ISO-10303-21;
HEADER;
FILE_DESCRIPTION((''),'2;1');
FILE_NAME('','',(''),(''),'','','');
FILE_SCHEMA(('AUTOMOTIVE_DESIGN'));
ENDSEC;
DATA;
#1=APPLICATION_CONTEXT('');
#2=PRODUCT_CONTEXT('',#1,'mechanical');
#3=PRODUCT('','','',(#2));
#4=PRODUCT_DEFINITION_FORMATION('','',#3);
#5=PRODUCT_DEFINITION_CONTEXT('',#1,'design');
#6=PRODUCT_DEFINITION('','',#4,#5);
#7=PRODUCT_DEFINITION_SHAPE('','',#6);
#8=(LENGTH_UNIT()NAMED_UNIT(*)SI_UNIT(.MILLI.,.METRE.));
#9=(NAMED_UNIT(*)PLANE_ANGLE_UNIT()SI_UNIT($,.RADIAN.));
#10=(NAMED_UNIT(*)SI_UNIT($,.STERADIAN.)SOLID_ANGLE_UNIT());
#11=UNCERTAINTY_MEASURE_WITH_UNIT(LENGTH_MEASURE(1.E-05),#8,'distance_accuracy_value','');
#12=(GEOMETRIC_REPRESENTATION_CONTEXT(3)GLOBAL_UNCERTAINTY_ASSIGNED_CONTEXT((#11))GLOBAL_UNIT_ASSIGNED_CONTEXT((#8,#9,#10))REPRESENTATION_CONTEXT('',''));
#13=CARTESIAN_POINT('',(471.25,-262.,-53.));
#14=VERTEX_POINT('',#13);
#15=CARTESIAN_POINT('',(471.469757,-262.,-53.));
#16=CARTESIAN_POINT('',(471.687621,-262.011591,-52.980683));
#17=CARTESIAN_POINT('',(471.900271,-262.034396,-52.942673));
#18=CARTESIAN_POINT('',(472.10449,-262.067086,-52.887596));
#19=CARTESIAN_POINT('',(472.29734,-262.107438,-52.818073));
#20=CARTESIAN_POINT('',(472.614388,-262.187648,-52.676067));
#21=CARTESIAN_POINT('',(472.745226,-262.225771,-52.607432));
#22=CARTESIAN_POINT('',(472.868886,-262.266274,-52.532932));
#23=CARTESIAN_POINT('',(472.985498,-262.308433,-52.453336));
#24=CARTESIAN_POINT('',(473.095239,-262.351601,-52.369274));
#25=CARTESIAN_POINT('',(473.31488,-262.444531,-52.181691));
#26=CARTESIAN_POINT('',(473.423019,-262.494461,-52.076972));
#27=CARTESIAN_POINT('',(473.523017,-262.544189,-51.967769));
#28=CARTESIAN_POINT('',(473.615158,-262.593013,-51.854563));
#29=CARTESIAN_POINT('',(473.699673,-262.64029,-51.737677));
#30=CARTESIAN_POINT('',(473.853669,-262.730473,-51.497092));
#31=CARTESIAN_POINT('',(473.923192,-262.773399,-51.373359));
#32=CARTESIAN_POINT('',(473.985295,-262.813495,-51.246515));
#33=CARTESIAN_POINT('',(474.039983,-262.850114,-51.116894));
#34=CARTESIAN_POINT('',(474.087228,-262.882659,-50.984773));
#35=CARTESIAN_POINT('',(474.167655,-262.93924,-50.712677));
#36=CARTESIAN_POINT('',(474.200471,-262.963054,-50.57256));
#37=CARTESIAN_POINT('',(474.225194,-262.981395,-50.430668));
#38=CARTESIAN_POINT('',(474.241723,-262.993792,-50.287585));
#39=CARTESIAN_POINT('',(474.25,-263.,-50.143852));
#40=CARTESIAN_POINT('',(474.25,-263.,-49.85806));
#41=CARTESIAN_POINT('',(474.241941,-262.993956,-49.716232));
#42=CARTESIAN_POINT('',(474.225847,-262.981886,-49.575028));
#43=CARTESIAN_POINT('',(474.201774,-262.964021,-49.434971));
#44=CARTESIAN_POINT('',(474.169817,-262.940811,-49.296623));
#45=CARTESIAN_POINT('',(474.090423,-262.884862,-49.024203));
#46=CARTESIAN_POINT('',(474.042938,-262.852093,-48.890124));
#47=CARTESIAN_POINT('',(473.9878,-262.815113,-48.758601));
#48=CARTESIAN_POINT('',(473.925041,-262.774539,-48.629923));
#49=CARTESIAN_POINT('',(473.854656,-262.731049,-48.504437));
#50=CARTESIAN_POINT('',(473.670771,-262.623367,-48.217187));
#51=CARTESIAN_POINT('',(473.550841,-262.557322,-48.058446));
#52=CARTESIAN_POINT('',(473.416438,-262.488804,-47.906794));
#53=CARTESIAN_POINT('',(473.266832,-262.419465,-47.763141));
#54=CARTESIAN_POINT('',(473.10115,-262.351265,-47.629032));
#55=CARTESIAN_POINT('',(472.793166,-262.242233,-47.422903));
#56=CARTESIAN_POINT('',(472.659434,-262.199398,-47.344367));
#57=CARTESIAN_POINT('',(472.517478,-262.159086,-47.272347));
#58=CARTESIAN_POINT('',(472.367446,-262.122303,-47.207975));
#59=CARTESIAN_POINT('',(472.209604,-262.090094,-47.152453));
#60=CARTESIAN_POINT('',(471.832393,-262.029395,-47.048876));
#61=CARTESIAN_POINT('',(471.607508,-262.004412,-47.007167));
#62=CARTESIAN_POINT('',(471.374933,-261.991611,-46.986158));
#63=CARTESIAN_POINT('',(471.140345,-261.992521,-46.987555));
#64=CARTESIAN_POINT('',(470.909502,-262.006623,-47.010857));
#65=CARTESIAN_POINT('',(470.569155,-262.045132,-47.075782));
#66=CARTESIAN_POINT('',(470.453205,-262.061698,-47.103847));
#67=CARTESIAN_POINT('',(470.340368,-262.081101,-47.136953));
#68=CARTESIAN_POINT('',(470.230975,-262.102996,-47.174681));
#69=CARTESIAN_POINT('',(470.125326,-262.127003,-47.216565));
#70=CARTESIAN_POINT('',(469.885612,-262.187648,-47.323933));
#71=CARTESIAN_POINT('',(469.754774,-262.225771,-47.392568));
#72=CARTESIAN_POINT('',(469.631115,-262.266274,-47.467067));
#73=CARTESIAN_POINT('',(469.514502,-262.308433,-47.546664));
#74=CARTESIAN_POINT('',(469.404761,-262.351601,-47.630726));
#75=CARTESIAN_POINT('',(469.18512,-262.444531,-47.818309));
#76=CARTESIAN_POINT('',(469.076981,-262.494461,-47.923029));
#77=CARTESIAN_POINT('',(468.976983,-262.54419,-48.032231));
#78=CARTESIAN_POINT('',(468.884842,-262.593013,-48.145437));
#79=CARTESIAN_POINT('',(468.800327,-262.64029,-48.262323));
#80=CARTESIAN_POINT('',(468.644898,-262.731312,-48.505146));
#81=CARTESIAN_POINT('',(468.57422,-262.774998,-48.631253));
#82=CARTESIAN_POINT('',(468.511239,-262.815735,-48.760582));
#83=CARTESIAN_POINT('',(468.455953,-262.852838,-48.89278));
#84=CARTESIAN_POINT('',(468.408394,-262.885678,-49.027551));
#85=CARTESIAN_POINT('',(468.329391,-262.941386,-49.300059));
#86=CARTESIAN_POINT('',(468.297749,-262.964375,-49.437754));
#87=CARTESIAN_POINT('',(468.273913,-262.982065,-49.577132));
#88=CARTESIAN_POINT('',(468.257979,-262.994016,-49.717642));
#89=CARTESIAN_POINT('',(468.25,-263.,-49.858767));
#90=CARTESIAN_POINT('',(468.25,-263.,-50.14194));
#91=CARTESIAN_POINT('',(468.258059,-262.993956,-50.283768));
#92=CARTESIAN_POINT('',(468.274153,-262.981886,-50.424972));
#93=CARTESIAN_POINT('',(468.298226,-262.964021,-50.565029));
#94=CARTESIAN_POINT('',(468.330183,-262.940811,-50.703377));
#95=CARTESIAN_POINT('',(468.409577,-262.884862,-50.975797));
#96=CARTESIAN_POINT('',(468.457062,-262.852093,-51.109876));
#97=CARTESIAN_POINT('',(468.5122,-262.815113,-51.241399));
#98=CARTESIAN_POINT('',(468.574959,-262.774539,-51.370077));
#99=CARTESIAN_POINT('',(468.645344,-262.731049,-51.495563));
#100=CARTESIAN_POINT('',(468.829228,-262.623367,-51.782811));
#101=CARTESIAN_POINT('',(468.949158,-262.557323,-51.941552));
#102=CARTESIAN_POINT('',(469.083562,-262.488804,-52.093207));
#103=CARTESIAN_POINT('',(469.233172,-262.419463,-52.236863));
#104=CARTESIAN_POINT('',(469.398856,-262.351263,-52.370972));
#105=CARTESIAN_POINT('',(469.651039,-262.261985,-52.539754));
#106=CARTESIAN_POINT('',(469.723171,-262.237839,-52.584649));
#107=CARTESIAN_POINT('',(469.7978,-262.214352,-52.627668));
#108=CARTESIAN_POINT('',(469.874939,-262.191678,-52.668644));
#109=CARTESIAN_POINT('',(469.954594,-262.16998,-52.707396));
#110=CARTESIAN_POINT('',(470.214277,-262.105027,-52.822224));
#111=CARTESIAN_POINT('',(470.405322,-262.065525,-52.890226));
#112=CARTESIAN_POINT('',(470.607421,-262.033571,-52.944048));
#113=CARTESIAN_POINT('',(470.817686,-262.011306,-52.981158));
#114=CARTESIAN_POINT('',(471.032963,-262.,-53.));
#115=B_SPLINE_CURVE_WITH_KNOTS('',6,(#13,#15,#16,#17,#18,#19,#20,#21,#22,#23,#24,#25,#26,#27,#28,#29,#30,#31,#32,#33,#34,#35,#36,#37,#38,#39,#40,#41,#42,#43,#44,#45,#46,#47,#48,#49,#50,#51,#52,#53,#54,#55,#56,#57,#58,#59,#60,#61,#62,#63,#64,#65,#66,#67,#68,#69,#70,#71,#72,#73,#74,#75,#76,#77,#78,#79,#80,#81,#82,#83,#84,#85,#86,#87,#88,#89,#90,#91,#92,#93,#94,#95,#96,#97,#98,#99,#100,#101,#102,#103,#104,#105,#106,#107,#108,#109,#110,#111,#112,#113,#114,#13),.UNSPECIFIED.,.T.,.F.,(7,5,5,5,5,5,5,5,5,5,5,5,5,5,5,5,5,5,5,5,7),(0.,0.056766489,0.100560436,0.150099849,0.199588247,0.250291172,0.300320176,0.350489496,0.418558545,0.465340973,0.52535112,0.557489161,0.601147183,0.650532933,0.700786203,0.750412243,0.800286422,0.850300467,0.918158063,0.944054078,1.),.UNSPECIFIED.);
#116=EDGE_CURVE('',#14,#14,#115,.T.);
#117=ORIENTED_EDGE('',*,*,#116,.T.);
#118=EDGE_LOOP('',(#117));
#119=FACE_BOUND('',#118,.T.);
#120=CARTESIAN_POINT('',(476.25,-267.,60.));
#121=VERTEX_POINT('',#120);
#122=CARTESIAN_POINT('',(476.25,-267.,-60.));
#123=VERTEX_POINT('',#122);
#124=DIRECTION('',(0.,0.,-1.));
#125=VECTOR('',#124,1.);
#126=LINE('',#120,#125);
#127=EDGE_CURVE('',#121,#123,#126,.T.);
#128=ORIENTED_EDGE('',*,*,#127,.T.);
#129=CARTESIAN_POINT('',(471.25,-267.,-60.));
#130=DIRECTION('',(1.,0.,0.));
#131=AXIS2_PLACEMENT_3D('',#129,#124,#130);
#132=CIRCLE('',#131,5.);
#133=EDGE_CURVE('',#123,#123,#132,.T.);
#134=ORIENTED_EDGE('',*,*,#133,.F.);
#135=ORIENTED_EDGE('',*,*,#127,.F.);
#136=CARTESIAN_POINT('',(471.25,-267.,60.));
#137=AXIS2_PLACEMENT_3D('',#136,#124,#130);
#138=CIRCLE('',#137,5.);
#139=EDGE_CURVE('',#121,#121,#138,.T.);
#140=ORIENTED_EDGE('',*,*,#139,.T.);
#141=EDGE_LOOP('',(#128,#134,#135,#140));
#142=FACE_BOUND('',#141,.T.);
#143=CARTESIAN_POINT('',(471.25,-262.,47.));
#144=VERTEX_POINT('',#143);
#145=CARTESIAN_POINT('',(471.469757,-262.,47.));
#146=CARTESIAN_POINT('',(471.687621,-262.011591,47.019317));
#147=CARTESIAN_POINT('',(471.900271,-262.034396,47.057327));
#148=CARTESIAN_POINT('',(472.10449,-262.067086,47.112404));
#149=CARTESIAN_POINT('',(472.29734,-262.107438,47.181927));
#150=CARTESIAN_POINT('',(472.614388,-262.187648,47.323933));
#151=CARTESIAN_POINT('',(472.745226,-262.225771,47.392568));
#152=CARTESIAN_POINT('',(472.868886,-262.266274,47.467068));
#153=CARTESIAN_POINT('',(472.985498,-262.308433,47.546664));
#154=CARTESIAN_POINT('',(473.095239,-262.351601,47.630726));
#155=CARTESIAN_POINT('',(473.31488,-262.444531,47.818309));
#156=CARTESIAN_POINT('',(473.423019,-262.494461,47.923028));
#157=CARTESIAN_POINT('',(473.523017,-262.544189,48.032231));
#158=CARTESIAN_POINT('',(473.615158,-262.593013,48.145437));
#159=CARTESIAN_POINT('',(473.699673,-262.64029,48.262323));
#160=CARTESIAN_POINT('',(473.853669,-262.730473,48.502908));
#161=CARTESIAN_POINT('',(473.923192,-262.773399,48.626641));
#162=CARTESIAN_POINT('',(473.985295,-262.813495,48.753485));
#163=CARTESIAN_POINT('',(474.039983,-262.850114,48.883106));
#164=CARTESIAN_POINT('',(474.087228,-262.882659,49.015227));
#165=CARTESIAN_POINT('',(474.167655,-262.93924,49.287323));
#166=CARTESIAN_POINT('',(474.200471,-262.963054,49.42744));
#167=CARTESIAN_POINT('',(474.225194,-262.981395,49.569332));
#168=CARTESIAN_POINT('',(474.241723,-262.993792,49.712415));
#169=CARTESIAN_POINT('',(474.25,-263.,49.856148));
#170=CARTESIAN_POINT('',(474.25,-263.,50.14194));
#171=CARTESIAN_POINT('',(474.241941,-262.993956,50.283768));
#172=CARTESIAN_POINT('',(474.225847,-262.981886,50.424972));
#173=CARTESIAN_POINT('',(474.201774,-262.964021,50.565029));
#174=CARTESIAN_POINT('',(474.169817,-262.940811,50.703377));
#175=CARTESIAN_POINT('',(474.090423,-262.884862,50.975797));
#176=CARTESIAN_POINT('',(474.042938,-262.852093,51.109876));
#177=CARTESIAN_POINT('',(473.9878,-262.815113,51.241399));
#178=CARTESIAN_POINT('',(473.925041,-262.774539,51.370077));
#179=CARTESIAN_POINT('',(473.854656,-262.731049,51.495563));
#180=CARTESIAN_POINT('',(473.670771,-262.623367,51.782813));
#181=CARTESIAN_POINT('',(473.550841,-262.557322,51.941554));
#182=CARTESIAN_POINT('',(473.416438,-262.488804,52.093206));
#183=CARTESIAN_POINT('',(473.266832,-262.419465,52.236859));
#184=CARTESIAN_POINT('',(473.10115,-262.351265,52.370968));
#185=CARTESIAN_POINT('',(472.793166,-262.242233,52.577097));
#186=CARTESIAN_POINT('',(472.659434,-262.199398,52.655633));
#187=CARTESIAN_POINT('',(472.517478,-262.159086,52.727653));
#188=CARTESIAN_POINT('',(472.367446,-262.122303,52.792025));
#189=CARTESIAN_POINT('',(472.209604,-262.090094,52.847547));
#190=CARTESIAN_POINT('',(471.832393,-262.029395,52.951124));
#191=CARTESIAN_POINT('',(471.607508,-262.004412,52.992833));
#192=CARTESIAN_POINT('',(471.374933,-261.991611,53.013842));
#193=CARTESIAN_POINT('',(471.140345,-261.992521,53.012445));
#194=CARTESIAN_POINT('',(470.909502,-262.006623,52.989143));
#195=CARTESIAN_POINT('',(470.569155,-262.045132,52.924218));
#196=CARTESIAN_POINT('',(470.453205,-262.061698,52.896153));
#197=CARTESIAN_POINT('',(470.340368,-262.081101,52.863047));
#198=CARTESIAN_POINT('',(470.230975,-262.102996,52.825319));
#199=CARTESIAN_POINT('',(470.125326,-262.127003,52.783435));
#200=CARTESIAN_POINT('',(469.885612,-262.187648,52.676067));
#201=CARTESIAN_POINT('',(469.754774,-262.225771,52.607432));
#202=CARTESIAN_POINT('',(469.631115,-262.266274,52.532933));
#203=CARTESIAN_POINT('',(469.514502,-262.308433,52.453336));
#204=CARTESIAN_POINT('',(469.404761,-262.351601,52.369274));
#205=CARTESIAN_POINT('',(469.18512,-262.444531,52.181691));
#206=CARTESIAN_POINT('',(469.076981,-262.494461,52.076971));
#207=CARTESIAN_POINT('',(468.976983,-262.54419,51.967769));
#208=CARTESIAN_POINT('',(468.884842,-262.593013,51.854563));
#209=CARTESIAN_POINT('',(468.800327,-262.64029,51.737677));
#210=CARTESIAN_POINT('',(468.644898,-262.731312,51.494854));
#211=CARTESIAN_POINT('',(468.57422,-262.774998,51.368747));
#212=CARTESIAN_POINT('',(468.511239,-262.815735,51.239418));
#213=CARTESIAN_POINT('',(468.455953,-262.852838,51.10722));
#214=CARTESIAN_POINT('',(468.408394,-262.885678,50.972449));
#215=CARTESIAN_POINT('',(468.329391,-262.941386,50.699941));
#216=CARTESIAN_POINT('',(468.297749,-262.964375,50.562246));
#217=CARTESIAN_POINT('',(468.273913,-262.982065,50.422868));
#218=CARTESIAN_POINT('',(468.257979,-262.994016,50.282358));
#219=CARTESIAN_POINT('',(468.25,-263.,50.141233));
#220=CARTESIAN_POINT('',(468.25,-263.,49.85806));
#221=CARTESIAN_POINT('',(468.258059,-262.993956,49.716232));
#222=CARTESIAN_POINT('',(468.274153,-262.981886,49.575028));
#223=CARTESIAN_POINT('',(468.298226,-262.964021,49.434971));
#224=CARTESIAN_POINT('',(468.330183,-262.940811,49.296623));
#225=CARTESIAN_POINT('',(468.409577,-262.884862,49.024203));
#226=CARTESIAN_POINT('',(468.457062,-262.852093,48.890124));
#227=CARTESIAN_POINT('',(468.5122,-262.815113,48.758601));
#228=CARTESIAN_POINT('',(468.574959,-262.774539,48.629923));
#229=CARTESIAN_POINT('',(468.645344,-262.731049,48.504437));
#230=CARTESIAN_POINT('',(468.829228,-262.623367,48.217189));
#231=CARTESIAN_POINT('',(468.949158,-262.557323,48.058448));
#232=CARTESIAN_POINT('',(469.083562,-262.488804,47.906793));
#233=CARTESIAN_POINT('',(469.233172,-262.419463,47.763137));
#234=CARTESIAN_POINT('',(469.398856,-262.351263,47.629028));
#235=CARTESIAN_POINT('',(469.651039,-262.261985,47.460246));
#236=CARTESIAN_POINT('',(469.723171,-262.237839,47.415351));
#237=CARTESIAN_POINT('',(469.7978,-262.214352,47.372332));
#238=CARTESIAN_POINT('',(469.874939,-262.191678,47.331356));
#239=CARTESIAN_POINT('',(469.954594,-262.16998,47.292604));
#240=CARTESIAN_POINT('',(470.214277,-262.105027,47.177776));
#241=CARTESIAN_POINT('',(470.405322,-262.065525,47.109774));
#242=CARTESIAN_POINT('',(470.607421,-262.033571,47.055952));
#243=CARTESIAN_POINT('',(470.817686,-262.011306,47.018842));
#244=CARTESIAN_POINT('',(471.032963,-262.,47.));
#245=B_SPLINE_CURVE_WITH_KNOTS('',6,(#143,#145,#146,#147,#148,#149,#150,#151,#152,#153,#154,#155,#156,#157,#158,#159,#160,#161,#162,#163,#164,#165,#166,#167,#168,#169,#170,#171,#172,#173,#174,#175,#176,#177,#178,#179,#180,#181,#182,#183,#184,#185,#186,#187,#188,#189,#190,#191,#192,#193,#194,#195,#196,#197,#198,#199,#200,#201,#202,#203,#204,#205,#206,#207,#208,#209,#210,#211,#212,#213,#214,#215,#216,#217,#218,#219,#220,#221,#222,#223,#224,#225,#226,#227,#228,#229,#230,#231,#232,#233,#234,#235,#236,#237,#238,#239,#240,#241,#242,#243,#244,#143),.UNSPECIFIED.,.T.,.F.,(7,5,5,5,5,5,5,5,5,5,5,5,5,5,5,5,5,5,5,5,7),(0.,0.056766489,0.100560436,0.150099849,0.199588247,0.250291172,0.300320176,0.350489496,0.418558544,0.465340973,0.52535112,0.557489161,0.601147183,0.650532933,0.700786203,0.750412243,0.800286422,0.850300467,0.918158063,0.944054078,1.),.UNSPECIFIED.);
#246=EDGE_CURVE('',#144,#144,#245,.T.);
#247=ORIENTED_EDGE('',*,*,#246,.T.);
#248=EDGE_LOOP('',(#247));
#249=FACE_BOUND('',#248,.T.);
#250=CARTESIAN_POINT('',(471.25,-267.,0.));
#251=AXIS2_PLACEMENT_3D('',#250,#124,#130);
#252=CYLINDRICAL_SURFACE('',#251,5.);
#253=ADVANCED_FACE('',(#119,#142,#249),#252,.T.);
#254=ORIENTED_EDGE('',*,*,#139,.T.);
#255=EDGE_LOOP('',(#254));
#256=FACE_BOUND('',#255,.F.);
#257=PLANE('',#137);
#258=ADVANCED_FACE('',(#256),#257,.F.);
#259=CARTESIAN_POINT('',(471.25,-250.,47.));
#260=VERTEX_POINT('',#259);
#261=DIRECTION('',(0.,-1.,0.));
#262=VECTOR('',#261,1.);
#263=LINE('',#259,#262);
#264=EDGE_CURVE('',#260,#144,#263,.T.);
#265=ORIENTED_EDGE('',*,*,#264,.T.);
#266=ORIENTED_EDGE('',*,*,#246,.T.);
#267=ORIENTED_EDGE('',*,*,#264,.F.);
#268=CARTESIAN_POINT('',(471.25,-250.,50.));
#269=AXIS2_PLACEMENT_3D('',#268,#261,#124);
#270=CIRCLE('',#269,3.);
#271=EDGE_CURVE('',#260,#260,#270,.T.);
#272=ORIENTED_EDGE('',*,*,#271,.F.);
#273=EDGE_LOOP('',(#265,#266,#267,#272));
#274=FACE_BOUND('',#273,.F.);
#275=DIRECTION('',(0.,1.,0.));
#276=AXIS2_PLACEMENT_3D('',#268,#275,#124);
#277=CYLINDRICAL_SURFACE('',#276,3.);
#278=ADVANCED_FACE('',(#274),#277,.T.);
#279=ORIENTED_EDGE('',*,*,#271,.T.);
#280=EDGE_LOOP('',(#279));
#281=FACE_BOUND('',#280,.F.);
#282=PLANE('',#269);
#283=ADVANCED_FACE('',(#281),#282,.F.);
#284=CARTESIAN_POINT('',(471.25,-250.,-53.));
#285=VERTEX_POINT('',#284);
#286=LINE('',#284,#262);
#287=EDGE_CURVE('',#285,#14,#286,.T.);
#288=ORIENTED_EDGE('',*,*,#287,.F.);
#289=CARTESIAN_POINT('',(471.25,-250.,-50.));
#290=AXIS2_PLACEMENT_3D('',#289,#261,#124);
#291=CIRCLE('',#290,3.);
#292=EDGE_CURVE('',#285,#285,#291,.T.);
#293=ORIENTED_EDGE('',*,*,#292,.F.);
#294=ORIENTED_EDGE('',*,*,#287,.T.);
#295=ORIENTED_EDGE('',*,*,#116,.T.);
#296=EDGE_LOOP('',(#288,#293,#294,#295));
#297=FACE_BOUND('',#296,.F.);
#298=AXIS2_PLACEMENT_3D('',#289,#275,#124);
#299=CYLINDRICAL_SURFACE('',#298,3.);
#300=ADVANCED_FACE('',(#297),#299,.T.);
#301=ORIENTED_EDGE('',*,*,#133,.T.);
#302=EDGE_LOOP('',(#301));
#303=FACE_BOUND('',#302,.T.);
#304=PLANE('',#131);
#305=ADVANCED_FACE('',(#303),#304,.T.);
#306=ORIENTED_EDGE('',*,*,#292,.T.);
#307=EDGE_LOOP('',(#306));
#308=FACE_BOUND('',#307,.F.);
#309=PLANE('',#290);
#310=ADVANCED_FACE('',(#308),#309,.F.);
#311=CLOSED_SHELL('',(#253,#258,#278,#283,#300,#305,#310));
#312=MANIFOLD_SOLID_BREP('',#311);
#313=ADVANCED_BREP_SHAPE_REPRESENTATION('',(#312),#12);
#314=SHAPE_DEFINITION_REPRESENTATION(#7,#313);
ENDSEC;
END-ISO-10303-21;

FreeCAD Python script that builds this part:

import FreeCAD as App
import Part
import Sketcher

V = App.Vector
Q = App.Units.Quantity

doc = App.newDocument("Part")
body = doc.addObject("PartDesign::Body", "Body")

sketch1 = doc.addObject("Sketcher::SketchObject", "Sketch")
body.addObject(sketch1)
sketch1.AttachmentSupport = (doc.XY_Plane, [""])
sketch1.MapMode = "FlatFace"
sketch1.addGeometry(Part.Circle(V(471, -267, 0), V(0, 0, 1), 5), False)
sketch1.addConstraint([
    Sketcher.Constraint("Diameter", 0, Q("10 mm")),
    Sketcher.Constraint("DistanceY", 0, 3, -1, 1, Q("267 mm")),
    Sketcher.Constraint("DistanceX", -1, 1, 0, 3, Q("471.25 mm")),
])
pad1 = doc.addObject("PartDesign::Pad", "Pad")
body.addObject(pad1)
pad1.Profile = sketch1
pad1.Length = 120
pad1.Midplane = True
body2 = doc.addObject("PartDesign::Body", "Body001")

sketch2 = doc.addObject("Sketcher::SketchObject", "Sketch001")
body2.addObject(sketch2)
sketch2.AttachmentSupport = (doc.getObject("XZ_Plane001"), [""])
sketch2.MapMode = "FlatFace"
sketch2.AttachmentOffset = App.Placement(V(0, 0, 250), App.Rotation())
sketch2.addGeometry(Part.Circle(V(471.2, -50, 0), V(0, 0, 1), 3), False)
sketch2.addConstraint([
    Sketcher.Constraint("Diameter", 0, Q("6 mm")),
    Sketcher.Constraint("DistanceY", 0, 3, -1, 1, Q("50 mm")),
    Sketcher.Constraint("DistanceX", -1, 1, 0, 3, Q("471.25 mm")),
])
pad2 = doc.addObject("PartDesign::Pad", "Pad001")
body2.addObject(pad2)
pad2.Profile = sketch2
pad2.Length = 17
body3 = doc.addObject("PartDesign::Body", "Body002")

sketch3 = doc.addObject("Sketcher::SketchObject", "Sketch002")
body3.addObject(sketch3)
sketch3.AttachmentSupport = (doc.getObject("XZ_Plane002"), [""])
sketch3.MapMode = "FlatFace"
sketch3.AttachmentOffset = App.Placement(V(0, 0, 250), App.Rotation())
sketch3.addGeometry(Part.Circle(V(471.2, 50, 0), V(0, 0, 1), 3), False)
sketch3.addConstraint([
    Sketcher.Constraint("Diameter", 0, Q("6 mm")),
    Sketcher.Constraint("DistanceY", -1, 1, 0, 3, Q("50 mm")),
    Sketcher.Constraint("DistanceX", -1, 1, 0, 3, Q("471.25 mm")),
])
pad3 = doc.addObject("PartDesign::Pad", "Pad002")
body3.addObject(pad3)
pad3.Profile = sketch3
pad3.Length = 17
doc.recompute()

boolean = doc.addObject("PartDesign::Boolean", "Boolean")
body3.addObject(boolean)
boolean.Type = "Fuse"
boolean.addObjects([body])
doc.recompute()

boolean2 = doc.addObject("PartDesign::Boolean", "Boolean001")
body3.addObject(boolean2)
boolean2.Type = "Fuse"
boolean2.addObjects([body2])

doc.recompute()
